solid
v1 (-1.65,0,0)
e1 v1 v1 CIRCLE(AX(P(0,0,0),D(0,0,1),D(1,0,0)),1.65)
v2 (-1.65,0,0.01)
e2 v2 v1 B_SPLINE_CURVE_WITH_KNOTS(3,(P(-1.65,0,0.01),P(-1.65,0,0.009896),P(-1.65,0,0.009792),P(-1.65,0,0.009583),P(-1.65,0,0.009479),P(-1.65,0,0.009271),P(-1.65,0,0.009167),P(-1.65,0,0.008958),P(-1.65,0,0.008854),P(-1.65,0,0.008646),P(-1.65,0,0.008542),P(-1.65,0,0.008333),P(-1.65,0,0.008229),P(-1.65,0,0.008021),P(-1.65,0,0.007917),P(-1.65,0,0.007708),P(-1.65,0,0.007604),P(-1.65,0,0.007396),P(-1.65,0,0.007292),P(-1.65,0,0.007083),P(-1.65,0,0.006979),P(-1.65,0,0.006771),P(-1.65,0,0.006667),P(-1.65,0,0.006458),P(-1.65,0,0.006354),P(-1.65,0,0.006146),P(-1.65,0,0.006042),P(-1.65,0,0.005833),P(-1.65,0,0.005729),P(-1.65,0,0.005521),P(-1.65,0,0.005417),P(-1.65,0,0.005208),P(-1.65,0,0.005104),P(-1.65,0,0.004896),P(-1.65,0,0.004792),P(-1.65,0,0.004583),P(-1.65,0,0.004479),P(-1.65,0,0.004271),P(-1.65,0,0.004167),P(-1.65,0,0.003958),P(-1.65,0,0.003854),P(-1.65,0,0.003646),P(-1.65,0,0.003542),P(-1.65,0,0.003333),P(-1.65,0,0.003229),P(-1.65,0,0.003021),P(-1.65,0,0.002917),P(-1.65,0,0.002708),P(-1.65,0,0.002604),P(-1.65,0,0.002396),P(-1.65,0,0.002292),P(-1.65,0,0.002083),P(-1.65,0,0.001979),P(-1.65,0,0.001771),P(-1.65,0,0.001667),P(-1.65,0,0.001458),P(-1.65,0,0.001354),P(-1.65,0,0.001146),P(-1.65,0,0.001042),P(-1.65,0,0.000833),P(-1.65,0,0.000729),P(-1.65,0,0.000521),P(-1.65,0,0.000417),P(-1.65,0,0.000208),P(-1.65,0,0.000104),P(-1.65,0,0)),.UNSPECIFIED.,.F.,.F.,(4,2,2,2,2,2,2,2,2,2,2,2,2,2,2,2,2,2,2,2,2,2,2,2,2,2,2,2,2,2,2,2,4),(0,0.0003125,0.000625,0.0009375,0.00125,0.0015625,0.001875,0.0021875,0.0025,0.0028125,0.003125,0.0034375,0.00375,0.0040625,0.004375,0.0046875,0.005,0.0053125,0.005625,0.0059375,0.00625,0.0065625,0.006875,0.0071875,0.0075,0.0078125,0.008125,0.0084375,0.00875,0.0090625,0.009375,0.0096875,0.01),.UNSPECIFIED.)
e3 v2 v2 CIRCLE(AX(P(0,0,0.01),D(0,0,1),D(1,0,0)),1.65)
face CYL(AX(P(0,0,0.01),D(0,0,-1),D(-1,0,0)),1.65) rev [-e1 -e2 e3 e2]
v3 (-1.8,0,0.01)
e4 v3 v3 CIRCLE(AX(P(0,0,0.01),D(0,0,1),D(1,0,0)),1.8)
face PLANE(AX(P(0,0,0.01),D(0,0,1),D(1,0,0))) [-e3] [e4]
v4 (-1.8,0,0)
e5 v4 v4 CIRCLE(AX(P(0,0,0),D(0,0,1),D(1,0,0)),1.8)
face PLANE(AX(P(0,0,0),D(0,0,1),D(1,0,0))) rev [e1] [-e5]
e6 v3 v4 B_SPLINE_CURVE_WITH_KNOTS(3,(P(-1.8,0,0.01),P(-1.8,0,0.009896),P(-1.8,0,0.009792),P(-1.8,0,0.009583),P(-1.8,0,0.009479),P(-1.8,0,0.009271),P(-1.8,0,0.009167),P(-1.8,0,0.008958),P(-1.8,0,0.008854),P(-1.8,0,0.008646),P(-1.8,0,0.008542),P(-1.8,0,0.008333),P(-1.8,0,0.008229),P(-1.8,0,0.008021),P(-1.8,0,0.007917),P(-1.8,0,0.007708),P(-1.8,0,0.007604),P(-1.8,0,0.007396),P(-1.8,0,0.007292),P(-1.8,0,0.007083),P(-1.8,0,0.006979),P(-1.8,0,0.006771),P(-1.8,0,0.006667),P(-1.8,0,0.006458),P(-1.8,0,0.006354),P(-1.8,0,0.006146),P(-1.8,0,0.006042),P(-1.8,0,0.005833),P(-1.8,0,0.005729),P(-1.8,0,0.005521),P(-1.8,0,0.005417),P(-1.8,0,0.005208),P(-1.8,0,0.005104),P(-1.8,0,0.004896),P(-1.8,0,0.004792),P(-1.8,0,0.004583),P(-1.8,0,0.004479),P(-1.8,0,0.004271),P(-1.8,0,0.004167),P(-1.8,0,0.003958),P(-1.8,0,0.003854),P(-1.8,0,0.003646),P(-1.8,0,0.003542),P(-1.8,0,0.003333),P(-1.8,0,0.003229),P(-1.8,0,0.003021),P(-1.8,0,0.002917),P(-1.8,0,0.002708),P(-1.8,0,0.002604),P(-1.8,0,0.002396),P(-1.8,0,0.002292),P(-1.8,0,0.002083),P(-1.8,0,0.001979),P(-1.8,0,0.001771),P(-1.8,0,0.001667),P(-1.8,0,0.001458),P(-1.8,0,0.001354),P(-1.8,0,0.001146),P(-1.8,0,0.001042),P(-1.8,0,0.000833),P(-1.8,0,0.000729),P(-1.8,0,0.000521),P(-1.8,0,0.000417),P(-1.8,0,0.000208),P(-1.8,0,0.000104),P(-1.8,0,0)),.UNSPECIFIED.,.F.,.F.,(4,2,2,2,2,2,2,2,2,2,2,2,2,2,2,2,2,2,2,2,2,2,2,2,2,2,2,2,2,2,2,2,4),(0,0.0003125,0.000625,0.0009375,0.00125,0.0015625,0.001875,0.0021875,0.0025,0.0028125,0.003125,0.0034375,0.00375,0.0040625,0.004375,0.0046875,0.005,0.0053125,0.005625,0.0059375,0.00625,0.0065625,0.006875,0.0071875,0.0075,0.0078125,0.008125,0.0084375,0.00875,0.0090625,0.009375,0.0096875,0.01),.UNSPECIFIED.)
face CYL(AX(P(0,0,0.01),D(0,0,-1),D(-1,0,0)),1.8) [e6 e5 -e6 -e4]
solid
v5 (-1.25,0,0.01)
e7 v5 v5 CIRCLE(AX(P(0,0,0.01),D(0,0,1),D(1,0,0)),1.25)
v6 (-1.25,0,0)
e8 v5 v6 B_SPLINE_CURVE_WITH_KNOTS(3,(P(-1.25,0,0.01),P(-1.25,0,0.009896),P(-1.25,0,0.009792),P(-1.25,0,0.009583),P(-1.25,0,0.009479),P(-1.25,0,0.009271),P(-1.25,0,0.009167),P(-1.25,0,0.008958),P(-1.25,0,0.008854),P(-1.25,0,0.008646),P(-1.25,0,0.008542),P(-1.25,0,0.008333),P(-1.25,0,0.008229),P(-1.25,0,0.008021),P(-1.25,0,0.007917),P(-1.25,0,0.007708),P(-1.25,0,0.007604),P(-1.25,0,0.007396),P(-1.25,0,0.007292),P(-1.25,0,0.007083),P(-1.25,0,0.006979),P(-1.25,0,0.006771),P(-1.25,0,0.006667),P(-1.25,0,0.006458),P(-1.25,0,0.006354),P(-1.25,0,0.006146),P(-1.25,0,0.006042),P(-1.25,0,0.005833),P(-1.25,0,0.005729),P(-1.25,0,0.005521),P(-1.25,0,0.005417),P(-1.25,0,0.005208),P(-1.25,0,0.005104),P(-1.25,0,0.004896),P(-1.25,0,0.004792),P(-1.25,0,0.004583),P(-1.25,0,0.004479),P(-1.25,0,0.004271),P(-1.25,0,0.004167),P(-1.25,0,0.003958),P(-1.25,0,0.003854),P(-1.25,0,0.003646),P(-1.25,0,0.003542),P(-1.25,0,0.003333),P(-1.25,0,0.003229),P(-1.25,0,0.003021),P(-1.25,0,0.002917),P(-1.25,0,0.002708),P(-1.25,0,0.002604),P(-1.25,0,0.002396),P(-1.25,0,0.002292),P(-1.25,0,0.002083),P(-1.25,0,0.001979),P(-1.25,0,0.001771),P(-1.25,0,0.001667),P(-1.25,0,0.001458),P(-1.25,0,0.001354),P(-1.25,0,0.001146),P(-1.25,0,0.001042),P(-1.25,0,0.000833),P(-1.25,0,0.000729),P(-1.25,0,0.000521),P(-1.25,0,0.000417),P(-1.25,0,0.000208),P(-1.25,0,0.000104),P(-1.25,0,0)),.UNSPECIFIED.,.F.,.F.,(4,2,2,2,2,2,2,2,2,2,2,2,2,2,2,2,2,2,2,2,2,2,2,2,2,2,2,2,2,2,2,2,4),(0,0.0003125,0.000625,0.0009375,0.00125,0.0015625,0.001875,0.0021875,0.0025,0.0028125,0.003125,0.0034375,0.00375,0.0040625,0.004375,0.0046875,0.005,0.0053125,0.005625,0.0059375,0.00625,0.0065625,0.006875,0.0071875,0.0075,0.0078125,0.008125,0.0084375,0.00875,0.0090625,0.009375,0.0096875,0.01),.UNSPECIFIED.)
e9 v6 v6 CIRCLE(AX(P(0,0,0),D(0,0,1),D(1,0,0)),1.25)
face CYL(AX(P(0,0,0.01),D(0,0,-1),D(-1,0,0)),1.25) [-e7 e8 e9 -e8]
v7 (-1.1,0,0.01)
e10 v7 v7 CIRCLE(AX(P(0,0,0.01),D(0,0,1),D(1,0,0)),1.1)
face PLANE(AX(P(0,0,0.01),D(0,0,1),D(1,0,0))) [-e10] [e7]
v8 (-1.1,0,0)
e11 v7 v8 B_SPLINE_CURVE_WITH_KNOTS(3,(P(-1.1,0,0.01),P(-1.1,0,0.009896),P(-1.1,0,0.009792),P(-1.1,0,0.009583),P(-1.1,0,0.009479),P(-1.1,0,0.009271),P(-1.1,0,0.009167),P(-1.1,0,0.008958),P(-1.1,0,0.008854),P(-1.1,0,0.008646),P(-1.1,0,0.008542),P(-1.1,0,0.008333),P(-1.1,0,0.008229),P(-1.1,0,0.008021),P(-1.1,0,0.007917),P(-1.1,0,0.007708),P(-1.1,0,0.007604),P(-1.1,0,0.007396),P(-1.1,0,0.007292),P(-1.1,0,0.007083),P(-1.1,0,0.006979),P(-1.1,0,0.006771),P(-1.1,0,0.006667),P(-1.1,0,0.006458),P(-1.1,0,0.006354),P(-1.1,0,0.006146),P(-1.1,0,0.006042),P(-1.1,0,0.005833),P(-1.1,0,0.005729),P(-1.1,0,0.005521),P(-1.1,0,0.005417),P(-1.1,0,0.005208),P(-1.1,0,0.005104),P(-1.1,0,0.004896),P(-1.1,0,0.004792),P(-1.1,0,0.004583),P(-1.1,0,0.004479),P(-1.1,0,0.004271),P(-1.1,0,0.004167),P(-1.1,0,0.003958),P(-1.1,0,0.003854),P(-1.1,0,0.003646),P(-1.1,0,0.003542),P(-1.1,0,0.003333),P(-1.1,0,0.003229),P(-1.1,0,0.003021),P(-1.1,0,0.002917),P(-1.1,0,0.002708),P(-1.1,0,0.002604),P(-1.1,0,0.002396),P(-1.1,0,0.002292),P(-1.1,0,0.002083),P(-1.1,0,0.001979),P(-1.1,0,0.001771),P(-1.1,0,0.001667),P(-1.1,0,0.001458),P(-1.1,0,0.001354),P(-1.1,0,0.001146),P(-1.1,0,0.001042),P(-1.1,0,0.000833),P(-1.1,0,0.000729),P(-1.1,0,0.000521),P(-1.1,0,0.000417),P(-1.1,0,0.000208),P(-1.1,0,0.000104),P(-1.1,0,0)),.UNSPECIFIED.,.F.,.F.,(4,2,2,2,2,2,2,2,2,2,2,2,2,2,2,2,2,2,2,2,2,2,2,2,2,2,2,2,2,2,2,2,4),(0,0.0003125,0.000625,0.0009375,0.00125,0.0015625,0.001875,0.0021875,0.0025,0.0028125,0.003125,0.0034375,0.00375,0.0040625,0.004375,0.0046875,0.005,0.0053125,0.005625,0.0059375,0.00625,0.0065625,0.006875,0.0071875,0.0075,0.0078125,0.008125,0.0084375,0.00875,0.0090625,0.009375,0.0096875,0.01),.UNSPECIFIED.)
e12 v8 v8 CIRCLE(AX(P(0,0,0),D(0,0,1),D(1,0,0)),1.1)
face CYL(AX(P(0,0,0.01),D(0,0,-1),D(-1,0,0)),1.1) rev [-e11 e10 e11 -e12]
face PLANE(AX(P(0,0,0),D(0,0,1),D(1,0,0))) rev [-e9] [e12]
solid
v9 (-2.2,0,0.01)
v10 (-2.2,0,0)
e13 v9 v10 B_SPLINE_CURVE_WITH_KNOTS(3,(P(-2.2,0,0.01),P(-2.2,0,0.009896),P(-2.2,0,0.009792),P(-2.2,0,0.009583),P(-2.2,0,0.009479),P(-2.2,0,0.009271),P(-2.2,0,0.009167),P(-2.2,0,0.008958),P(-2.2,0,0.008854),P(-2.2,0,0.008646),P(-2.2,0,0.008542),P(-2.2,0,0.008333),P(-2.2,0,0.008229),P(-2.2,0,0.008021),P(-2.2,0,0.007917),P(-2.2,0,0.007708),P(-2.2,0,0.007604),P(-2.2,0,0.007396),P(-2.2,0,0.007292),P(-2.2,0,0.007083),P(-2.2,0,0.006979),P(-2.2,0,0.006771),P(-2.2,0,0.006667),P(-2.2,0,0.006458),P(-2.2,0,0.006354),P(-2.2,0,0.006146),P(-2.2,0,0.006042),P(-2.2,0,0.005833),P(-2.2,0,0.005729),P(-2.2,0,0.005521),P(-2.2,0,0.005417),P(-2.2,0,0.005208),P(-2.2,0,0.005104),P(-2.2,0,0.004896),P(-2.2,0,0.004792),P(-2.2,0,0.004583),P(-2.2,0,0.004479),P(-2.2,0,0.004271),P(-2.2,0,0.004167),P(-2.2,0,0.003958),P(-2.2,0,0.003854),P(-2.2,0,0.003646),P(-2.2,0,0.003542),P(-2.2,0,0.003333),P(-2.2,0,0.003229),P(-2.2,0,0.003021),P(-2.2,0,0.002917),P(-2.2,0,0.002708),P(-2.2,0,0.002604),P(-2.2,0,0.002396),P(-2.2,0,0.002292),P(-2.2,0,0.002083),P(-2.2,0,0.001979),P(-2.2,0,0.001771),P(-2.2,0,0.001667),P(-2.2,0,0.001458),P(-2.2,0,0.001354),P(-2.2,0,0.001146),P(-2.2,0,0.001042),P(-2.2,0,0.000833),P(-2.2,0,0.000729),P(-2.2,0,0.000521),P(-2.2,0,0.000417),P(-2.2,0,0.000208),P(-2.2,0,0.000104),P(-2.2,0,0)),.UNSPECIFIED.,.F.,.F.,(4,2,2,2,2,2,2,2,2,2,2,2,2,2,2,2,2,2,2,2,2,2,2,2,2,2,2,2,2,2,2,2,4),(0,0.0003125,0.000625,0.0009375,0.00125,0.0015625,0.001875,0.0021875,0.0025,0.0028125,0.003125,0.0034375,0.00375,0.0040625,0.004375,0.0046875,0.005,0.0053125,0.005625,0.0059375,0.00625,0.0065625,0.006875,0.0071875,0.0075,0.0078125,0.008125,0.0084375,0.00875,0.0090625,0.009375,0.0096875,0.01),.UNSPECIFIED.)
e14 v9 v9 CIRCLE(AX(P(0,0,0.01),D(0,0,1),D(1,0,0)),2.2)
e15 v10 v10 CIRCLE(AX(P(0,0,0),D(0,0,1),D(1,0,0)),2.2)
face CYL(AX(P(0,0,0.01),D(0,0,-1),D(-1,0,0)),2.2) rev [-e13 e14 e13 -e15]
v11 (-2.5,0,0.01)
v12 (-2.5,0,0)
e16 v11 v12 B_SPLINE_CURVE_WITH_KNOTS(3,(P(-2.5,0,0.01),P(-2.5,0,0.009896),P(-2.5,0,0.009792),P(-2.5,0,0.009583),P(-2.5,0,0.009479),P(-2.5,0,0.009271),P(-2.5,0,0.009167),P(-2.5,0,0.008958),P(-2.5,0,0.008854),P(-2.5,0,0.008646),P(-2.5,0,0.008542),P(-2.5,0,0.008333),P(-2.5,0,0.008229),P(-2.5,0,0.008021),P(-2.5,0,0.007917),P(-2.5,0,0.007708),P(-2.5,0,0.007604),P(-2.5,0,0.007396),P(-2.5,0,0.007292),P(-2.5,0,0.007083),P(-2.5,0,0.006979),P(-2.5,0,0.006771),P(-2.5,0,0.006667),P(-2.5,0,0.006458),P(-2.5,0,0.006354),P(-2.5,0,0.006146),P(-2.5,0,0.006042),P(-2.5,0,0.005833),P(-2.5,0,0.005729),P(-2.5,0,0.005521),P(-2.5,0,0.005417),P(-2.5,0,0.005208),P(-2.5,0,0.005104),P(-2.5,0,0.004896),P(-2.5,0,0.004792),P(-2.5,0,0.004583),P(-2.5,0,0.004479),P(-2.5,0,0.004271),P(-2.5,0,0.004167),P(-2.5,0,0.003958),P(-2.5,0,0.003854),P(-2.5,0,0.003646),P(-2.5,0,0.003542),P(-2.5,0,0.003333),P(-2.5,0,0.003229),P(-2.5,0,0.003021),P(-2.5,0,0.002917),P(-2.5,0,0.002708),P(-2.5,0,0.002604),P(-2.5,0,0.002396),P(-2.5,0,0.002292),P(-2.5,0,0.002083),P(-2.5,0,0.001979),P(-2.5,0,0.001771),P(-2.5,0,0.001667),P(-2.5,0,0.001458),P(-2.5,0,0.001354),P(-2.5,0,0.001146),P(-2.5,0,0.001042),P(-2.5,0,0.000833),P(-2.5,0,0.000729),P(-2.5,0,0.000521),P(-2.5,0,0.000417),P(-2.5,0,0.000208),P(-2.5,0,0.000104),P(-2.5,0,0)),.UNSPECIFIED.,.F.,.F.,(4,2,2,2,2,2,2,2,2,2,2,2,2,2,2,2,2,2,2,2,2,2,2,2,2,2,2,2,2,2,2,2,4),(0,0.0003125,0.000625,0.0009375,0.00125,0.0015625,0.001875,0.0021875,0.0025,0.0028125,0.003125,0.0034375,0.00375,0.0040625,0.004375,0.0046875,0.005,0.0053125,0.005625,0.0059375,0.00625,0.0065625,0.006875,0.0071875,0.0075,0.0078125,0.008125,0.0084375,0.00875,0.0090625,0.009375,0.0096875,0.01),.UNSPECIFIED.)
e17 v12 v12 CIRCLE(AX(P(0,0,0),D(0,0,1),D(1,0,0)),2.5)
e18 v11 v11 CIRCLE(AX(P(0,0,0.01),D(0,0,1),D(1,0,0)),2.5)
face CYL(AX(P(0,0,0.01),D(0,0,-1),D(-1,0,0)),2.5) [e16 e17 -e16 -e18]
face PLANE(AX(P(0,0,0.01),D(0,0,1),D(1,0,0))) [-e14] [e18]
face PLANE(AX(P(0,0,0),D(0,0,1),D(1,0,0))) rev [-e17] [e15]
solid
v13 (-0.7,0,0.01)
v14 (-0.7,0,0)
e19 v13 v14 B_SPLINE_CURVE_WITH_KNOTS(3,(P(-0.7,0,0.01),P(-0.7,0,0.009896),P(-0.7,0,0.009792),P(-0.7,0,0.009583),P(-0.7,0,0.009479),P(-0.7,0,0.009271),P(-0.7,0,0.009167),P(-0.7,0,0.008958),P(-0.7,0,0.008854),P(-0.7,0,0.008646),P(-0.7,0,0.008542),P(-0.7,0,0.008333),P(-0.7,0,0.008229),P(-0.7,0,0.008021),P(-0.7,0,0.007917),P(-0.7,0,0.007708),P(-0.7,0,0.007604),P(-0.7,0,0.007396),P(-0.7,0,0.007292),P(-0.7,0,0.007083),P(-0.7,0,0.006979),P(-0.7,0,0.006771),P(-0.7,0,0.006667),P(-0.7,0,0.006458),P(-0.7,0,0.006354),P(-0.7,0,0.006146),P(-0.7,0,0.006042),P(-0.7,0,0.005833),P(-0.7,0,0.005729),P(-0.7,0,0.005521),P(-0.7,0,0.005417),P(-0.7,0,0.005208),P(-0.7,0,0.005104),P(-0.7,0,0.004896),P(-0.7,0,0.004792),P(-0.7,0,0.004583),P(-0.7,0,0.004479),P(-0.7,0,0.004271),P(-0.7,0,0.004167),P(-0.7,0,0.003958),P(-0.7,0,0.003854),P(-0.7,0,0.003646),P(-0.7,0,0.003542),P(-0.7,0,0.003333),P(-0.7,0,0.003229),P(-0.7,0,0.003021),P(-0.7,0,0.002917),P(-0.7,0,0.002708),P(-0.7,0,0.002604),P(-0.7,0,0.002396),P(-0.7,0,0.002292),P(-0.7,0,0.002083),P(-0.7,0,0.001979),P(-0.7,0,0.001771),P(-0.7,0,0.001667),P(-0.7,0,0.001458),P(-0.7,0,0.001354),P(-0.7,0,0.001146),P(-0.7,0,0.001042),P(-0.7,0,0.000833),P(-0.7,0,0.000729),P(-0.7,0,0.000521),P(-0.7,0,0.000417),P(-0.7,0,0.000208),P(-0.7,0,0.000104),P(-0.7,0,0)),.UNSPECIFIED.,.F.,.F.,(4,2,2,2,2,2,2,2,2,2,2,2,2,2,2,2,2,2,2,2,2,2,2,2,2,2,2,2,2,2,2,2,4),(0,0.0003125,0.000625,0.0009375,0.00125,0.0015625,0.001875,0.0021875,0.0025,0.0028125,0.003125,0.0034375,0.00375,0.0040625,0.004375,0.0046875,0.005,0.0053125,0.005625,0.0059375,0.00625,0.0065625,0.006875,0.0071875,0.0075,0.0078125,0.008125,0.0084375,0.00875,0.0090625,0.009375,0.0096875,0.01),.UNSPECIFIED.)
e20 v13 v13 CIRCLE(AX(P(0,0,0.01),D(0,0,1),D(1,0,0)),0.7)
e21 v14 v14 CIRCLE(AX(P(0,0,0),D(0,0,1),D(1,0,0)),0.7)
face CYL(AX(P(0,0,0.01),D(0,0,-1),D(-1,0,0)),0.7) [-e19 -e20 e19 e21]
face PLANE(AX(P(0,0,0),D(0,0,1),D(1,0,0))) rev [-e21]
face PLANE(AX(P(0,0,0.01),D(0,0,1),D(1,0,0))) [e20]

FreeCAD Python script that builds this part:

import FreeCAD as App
import Part
import Sketcher
from FreeCAD import Vector
Q = App.Units.Quantity

doc = App.newDocument("Part")
body = doc.addObject("PartDesign::Body", "Body")

# Sketch on XY plane
sketch1 = body.newObject("Sketcher::SketchObject", "Sketch")
sketch1.AttachmentSupport = (doc.getObject("XY_Plane"), [""])
sketch1.MapMode = "FlatFace"
sketch1.addGeometry(Part.Circle(Vector(0, 0, 0), Vector(0, 0, 1), 2.5), False)
sketch1.addGeometry(Part.Circle(Vector(0, 0, 0), Vector(0, 0, 1), 2.2), False)
sketch1.addConstraint(Sketcher.Constraint("Coincident", 0, 3, -1, 1))
sketch1.addConstraint(Sketcher.Constraint("Coincident", 1, 3, -1, 1))
sketch1.addConstraint(Sketcher.Constraint("Diameter", 0, Q("5 mm")))
sketch1.addConstraint(Sketcher.Constraint("Diameter", 1, Q("4.4 mm")))
pad1 = body.newObject("PartDesign::Pad", "Pad")
pad1.Profile = sketch1
pad1.Length = 0.01
body2 = doc.addObject("PartDesign::Body", "Body001")

# Sketch on XY plane
sketch2 = body2.newObject("Sketcher::SketchObject", "Sketch001")
sketch2.AttachmentSupport = (doc.getObject("XY_Plane001"), [""])
sketch2.MapMode = "FlatFace"
sketch2.addGeometry(Part.Circle(Vector(0, 0, 0), Vector(0, 0, 1), 1.8), False)
sketch2.addGeometry(Part.Circle(Vector(0, 0, 0), Vector(0, 0, 1), 1.6), False)
sketch2.addConstraint(Sketcher.Constraint("Coincident", 0, 3, -1, 1))
sketch2.addConstraint(Sketcher.Constraint("Coincident", 1, 3, -1, 1))
sketch2.addConstraint(Sketcher.Constraint("Diameter", 0, Q("3.6 mm")))
sketch2.addConstraint(Sketcher.Constraint("Diameter", 1, Q("3.3 mm")))
pad2 = body2.newObject("PartDesign::Pad", "Pad001")
pad2.Profile = sketch2
pad2.Length = 0.01
body3 = doc.addObject("PartDesign::Body", "Body002")

# Sketch on XY plane
sketch3 = body3.newObject("Sketcher::SketchObject", "Sketch002")
sketch3.AttachmentSupport = (doc.getObject("XY_Plane002"), [""])
sketch3.MapMode = "FlatFace"
sketch3.addGeometry(Part.Circle(Vector(0, 0, 0), Vector(0, 0, 1), 1.2), False)
sketch3.addGeometry(Part.Circle(Vector(0, 0, 0), Vector(0, 0, 1), 1.1), False)
sketch3.addConstraint(Sketcher.Constraint("Coincident", 0, 3, -1, 1))
sketch3.addConstraint(Sketcher.Constraint("Coincident", 1, 3, -1, 1))
sketch3.addConstraint(Sketcher.Constraint("Diameter", 0, Q("2.5 mm")))
sketch3.addConstraint(Sketcher.Constraint("Diameter", 1, Q("2.2 mm")))
pad3 = body3.newObject("PartDesign::Pad", "Pad002")
pad3.Profile = sketch3
pad3.Length = 0.01
body4 = doc.addObject("PartDesign::Body", "Body003")

# Sketch on XY plane
sketch4 = body4.newObject("Sketcher::SketchObject", "Sketch003")
sketch4.AttachmentSupport = (doc.getObject("XY_Plane003"), [""])
sketch4.MapMode = "FlatFace"
sketch4.addGeometry(Part.Circle(Vector(0, 0, 0), Vector(0, 0, 1), 0.7), False)
sketch4.addConstraint(Sketcher.Constraint("Coincident", 0, 3, -1, 1))
sketch4.addConstraint(Sketcher.Constraint("Diameter", 0, Q("1.4 mm")))
pad4 = body4.newObject("PartDesign::Pad", "Pad003")
pad4.Profile = sketch4
pad4.Length = 0.01

doc.recompute()
